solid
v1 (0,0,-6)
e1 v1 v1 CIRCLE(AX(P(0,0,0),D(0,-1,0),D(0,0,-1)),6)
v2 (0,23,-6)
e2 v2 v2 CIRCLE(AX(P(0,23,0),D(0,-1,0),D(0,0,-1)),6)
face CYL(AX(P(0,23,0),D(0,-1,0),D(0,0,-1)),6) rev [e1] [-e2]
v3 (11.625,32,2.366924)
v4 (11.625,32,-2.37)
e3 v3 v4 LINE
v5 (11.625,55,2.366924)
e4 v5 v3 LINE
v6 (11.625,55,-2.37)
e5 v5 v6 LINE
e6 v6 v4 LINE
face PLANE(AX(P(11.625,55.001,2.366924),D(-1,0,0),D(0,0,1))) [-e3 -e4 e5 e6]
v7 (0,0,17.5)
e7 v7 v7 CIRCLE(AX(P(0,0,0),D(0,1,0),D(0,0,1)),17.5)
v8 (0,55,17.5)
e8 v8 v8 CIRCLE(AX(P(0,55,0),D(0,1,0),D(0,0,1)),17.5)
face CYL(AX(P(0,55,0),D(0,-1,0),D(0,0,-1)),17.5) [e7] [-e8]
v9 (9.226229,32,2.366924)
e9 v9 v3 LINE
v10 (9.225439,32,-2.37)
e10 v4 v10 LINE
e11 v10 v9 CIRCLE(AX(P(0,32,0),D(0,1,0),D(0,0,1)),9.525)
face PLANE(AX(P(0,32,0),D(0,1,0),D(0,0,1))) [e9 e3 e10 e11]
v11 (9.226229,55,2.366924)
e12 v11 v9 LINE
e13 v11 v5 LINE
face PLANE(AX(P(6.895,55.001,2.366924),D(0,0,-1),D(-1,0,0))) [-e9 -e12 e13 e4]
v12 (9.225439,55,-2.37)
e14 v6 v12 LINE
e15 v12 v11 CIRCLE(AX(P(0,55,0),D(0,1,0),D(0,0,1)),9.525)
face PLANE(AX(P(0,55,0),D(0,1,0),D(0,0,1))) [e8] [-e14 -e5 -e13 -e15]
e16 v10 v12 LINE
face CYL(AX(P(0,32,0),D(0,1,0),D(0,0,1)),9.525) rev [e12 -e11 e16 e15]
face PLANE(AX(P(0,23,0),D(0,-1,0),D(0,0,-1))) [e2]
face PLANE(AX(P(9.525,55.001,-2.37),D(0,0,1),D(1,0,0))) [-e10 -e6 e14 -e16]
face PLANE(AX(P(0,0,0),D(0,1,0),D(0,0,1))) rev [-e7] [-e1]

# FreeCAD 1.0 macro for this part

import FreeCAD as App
import Part
import Sketcher
Q = App.Units.Quantity

doc = App.newDocument("Part")
params = doc.addObject("Spreadsheet::Sheet", "Params")
for row, (alias, value) in enumerate([
    ("sketch1_diameter", "35 mm"),
    ("pad1_length", "55 mm"),
    ("sketch2_diameter", "19.05 mm"),
    ("pocket1_length", "23 mm"),
    ("sketch3_width", "4.73 mm"),
    ("pocket2_length", "23 mm"),
    ("sketch4_diameter", "12 mm"),
    ("pocket3_length", "23 mm"),
], start=1):
    params.set(f"A{row}", alias)
    params.set(f"B{row}", "=" + value)
    params.setAlias(f"B{row}", alias)

body = doc.addObject("PartDesign::Body", "Body")

sketch1 = body.newObject("Sketcher::SketchObject", "Sketch")
sketch1.AttachmentSupport = (doc.getObject("XZ_Plane"), [""])
sketch1.MapMode = "FlatFace"
sketch1.addGeometry(Part.Circle(App.Vector(0, 0, 0), App.Vector(0, 0, 1), 18), False)
sketch1.addConstraint([
    Sketcher.Constraint("Coincident", 0, 3, -1, 1),
    Sketcher.Constraint("Diameter", 0, Q("35 mm")),
])
sketch1.setExpression("Constraints[1]", "Params.sketch1_diameter")
pad1 = body.newObject("PartDesign::Pad", "Pad")
pad1.Profile = sketch1
pad1.setExpression("Length", "Params.pad1_length")
pad1.Reversed = True

sketch2 = body.newObject("Sketcher::SketchObject", "Sketch001")
sketch2.AttachmentSupport = (doc.getObject("XZ_Plane"), [""])
sketch2.MapMode = "FlatFace"
sketch2.AttachmentOffset = App.Placement(App.Vector(0, 0, -55), App.Rotation())
sketch2.addGeometry(Part.Circle(App.Vector(0, 0, 0), App.Vector(0, 0, 1), 10), False)
sketch2.addConstraint([
    Sketcher.Constraint("Coincident", 0, 3, -1, 1),
    Sketcher.Constraint("Diameter", 0, Q("19.05 mm")),
])
sketch2.setExpression("Constraints[1]", "Params.sketch2_diameter")
pocket1 = body.newObject("PartDesign::Pocket", "Pocket")
pocket1.Profile = sketch2
pocket1.setExpression("Length", "Params.pocket1_length")
pocket1.Reversed = True

sketch3 = body.newObject("Sketcher::SketchObject", "Sketch002")
sketch3.AttachmentSupport = (doc.getObject("XZ_Plane"), [""])
sketch3.MapMode = "FlatFace"
sketch3.AttachmentOffset = App.Placement(App.Vector(0, 0, -32), App.Rotation())
sketch3.addGeometry([
    Part.LineSegment(App.Vector(11.6, -2.4, 0), App.Vector(6.9, -2.4, 0)),
    Part.LineSegment(App.Vector(6.9, -2.4, 0), App.Vector(6.9, 2.4, 0)),
    Part.LineSegment(App.Vector(6.9, 2.4, 0), App.Vector(11.6, 2.4, 0)),
    Part.LineSegment(App.Vector(11.6, 2.4, 0), App.Vector(11.6, -2.4, 0)),
], False)
sketch3.addConstraint([
    Sketcher.Constraint("Coincident", 0, 2, 1, 1),
    Sketcher.Constraint("Coincident", 1, 2, 2, 1),
    Sketcher.Constraint("Coincident", 2, 2, 3, 1),
    Sketcher.Constraint("Coincident", 3, 2, 0, 1),
    Sketcher.Constraint("Horizontal", 0),
    Sketcher.Constraint("Vertical", 1),
    Sketcher.Constraint("Horizontal", 2),
    Sketcher.Constraint("Vertical", 3),
    Sketcher.Constraint("DistanceX", 0, 2, 0, 1, Q("4.73 mm")),
    Sketcher.Constraint("DistanceY", 0, 2, -1, 1, Q("2.37 mm")),
    Sketcher.Constraint("DistanceX", -1, 1, 0, 2, Q("6.895 mm")),
    Sketcher.Constraint("DistanceY", 1, 1, 1, 2, Q("4.736924 mm")),
])
sketch3.setExpression("Constraints[8]", "Params.sketch3_width")
pocket2 = body.newObject("PartDesign::Pocket", "Pocket001")
pocket2.Profile = sketch3
pocket2.setExpression("Length", "Params.pocket2_length")

sketch4 = body.newObject("Sketcher::SketchObject", "Sketch003")
sketch4.AttachmentSupport = (doc.getObject("XZ_Plane"), [""])
sketch4.MapMode = "FlatFace"
sketch4.addGeometry(Part.Circle(App.Vector(0, 0, 0), App.Vector(0, 0, 1), 6), False)
sketch4.addConstraint([
    Sketcher.Constraint("Coincident", 0, 3, -1, 1),
    Sketcher.Constraint("Diameter", 0, Q("12 mm")),
])
sketch4.setExpression("Constraints[1]", "Params.sketch4_diameter")
pocket3 = body.newObject("PartDesign::Pocket", "Pocket002")
pocket3.Profile = sketch4
pocket3.setExpression("Length", "Params.pocket3_length")

doc.recompute()
